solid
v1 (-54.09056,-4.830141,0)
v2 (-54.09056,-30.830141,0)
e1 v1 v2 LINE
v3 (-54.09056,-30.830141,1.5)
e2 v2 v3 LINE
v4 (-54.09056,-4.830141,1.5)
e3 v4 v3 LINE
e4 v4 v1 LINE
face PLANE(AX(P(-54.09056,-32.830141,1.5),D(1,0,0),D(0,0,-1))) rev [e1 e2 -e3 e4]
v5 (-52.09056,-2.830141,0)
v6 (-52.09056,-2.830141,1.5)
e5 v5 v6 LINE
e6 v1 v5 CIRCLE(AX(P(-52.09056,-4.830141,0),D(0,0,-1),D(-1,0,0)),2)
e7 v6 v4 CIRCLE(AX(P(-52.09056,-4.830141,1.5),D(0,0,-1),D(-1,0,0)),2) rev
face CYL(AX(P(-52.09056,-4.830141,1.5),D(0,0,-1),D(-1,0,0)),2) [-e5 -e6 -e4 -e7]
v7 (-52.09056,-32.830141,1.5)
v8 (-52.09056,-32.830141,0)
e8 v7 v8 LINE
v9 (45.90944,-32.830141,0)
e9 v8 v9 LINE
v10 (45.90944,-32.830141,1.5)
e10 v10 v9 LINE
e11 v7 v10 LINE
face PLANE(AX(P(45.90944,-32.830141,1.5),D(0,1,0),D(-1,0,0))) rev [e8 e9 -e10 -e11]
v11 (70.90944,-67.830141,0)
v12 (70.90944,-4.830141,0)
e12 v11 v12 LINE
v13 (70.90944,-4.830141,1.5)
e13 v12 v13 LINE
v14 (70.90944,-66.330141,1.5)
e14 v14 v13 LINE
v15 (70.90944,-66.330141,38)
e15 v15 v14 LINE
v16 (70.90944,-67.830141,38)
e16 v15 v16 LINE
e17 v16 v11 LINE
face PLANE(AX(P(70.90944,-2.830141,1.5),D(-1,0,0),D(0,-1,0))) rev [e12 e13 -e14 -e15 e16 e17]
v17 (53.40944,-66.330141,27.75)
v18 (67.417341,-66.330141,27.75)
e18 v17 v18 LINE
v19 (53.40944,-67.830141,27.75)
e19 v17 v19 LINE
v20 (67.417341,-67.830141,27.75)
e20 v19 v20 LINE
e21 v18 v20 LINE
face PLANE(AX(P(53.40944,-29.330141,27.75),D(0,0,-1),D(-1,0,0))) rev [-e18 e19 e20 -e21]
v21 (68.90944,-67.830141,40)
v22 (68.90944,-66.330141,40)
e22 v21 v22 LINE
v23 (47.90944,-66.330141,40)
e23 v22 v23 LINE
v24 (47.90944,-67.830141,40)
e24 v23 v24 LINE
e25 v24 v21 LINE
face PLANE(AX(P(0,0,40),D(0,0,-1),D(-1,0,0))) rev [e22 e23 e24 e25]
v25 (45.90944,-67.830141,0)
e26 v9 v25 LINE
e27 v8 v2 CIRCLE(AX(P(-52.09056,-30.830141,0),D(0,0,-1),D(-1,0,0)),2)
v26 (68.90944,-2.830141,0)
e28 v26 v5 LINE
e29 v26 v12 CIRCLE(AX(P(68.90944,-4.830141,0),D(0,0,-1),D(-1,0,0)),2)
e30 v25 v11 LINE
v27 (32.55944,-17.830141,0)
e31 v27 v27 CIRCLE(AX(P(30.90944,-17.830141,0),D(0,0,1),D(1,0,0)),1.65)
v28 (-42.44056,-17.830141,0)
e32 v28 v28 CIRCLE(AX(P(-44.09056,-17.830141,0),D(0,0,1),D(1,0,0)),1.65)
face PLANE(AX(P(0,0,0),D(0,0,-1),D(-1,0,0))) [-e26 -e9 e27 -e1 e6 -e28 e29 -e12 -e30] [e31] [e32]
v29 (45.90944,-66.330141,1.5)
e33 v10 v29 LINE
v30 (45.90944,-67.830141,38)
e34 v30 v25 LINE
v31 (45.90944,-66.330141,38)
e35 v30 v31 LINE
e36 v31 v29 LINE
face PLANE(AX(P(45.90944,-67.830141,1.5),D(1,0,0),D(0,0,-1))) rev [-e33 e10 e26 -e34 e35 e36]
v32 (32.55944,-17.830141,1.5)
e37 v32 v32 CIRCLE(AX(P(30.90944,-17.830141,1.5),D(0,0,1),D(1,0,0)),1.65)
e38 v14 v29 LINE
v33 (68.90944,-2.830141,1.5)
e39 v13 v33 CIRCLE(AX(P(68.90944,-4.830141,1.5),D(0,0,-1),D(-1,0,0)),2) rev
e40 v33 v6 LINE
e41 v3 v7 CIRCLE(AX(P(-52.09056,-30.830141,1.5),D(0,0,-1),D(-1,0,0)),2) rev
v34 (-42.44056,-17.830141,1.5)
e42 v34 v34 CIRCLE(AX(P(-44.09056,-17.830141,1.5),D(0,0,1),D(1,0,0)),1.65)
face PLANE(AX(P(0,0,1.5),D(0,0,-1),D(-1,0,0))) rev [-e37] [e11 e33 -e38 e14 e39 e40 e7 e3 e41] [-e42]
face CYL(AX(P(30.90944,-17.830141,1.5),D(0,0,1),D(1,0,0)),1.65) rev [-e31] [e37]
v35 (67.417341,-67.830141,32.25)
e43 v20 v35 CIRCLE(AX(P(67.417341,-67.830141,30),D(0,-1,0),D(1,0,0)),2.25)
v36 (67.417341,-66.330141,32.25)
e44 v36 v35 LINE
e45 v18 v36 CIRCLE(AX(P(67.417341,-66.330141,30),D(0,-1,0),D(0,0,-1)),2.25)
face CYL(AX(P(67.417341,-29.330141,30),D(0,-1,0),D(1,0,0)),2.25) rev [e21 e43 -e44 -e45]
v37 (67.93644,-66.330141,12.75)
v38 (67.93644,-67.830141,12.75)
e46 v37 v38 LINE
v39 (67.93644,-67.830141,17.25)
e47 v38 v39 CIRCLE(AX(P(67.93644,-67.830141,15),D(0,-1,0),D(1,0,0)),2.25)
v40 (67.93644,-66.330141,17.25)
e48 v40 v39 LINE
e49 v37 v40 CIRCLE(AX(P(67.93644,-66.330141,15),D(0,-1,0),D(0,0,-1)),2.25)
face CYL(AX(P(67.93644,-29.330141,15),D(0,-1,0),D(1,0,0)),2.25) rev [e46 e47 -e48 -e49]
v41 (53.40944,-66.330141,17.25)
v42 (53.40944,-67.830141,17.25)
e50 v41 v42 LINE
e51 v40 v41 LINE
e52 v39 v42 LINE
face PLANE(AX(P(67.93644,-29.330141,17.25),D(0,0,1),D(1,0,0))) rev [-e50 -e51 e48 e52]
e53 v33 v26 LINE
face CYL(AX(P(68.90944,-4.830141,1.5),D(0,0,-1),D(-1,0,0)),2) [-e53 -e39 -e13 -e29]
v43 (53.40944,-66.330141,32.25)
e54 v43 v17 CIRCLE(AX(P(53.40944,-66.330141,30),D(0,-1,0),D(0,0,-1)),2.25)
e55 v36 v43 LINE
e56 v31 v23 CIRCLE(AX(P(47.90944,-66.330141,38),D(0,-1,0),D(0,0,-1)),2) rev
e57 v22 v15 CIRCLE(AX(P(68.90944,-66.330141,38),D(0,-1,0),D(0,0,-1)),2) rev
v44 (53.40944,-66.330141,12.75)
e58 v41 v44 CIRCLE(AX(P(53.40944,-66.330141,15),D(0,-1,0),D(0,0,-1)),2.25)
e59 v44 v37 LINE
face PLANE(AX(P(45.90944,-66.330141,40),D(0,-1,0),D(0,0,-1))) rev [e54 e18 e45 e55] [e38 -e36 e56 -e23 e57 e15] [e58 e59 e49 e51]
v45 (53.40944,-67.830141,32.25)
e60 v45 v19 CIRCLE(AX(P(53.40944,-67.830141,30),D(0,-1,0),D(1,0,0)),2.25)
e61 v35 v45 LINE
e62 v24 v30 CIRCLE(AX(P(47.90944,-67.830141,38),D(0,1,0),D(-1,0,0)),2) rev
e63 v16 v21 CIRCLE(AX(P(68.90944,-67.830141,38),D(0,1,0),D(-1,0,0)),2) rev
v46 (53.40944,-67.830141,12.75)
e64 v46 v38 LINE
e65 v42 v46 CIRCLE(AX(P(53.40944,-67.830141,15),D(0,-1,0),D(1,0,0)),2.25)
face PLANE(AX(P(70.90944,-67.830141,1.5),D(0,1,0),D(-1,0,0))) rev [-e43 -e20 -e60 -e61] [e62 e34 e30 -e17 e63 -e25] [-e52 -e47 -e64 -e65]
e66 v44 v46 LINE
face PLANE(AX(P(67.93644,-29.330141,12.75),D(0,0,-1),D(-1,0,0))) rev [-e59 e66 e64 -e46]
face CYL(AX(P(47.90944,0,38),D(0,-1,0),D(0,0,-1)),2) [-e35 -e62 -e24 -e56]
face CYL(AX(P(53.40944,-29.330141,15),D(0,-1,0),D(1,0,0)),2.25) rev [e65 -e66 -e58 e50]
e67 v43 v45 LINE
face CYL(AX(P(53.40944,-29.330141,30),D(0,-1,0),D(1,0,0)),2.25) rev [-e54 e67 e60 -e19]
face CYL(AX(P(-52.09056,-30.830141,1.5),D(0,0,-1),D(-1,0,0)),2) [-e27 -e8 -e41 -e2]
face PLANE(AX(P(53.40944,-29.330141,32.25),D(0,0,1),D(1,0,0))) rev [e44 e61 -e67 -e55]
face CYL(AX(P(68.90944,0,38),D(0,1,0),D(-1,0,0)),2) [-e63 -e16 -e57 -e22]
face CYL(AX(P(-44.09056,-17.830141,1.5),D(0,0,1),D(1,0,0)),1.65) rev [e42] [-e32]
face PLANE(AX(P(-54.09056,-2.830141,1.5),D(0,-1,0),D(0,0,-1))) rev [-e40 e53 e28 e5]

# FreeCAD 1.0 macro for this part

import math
import FreeCAD as App
import Part
import Sketcher
from FreeCAD import Vector


def edges_at(feature, points):
    """Names of the edges that pass closest to the given points."""
    edges = feature.Shape.Edges
    near = lambda p: min(range(len(edges)), key=lambda i: edges[i].distToShape(Part.Vertex(*p))[0])
    return sorted({f"Edge{near(p) + 1}" for p in points})


def add_polygon(sketch, points):
    """Adds a closed chain of lines whose ends are joined by coincident constraints."""
    first, n = sketch.GeometryCount, len(points)
    for a, b in zip(points, points[1:] + points[:1]):
        sketch.addGeometry(Part.LineSegment(App.Vector(*a, 0), App.Vector(*b, 0)), False)
    for i in range(n):
        sketch.addConstraint(Sketcher.Constraint("Coincident", first + i, 2, first + (i + 1) % n, 1))

doc = App.newDocument("Part")
params = doc.addObject("Spreadsheet::Sheet", "Params")
for row, (alias, value) in enumerate([
    ("sketch1_width", "125 mm"),
    ("sketch1_width2", "100 mm"),
    ("sketch1_height", "30 mm"),
    ("sketch1_height2", "35 mm"),
    ("pad1_length", "1.5 mm"),
    ("sketch2_width", "25 mm"),
    ("sketch2_height", "1.5 mm"),
    ("pad2_length", "38.5 mm"),
    ("fillet_radius", "2 mm"),
    ("sketch3_radius", "2.25 mm"),
    ("pocket1_length", "38.5 mm"),
    ("sketch4_diameter", "3.3 mm"),
    ("hole_diameter", "3.3 mm"),
], start=1):
    params.set(f"A{row}", alias)
    params.set(f"B{row}", "=" + value)
    params.setAlias(f"B{row}", alias)

body = doc.addObject("PartDesign::Body", "Body")

# Sketch on XY plane
sketch1 = body.newObject("Sketcher::SketchObject", "Sketch")
sketch1.AttachmentSupport = (doc.getObject("XY_Plane"), [""])
sketch1.MapMode = "FlatFace"
add_polygon(sketch1, [(71, -3), (-54, -3), (-54, -33), (46, -33), (46, -68), (71, -68)])  # lines 0-5
sketch1.addConstraint(Sketcher.Constraint("Horizontal", 0))
sketch1.addConstraint(Sketcher.Constraint("Vertical", 1))
sketch1.addConstraint(Sketcher.Constraint("Horizontal", 2))
sketch1.addConstraint(Sketcher.Constraint("Vertical", 3))
sketch1.addConstraint(Sketcher.Constraint("Horizontal", 4))
sketch1.addConstraint(Sketcher.Constraint("Vertical", 5))
sketch1.addConstraint(Sketcher.Constraint("DistanceX", 0, 2, 0, 1, 125.0))
sketch1.addConstraint(Sketcher.Constraint("DistanceX", 2, 1, 2, 2, 100.0))
sketch1.addConstraint(Sketcher.Constraint("DistanceY", 1, 2, 1, 1, 30.0))
sketch1.addConstraint(Sketcher.Constraint("DistanceY", 3, 2, 3, 1, 35.0))
sketch1.addConstraint(Sketcher.Constraint("DistanceX", 0, 2, -1, 1, 54.09056))
sketch1.addConstraint(Sketcher.Constraint("DistanceY", 0, 2, -1, 1, 2.830141))
sketch1.setExpression("Constraints[12]", "Params.sketch1_width")
sketch1.setExpression("Constraints[13]", "Params.sketch1_width2")
sketch1.setExpression("Constraints[14]", "Params.sketch1_height")
sketch1.setExpression("Constraints[15]", "Params.sketch1_height2")
pad1 = body.newObject("PartDesign::Pad", "Pad")
pad1.Profile = sketch1
pad1.setExpression("Length", "Params.pad1_length")

# Sketch on XY plane
sketch2 = body.newObject("Sketcher::SketchObject", "Sketch001")
sketch2.AttachmentSupport = (doc.getObject("XY_Plane"), [""])
sketch2.MapMode = "FlatFace"
sketch2.AttachmentOffset = App.Placement(Vector(0, 0, 1.5), App.Rotation())
add_polygon(sketch2, [(45.9, -66.3), (45.9, -67.8), (70.9, -67.8), (70.9, -66.3)])  # lines 0-3
sketch2.addConstraint(Sketcher.Constraint("Vertical", 0))
sketch2.addConstraint(Sketcher.Constraint("Horizontal", 1))
sketch2.addConstraint(Sketcher.Constraint("Vertical", 2))
sketch2.addConstraint(Sketcher.Constraint("Horizontal", 3))
sketch2.addConstraint(Sketcher.Constraint("DistanceX", 1, 1, 1, 2, 25.0))
sketch2.addConstraint(Sketcher.Constraint("DistanceY", 0, 2, 0, 1, 1.5))
sketch2.addConstraint(Sketcher.Constraint("DistanceX", -1, 1, 0, 2, 45.90944))
sketch2.addConstraint(Sketcher.Constraint("DistanceY", 0, 2, -1, 1, 67.830141))
sketch2.setExpression("Constraints[8]", "Params.sketch2_width")
sketch2.setExpression("Constraints[9]", "Params.sketch2_height")
pad2 = body.newObject("PartDesign::Pad", "Pad001")
pad2.Profile = sketch2
pad2.setExpression("Length", "Params.pad2_length")
doc.recompute()

fillet = body.newObject("PartDesign::Fillet", "Fillet")
fillet.Base = (pad2, edges_at(pad2, [
    (-54.091, -2.83, 0.75),
    (70.909, -2.83, 0.75),
    (-54.091, -32.83, 0.75),
    (45.909, -67.08, 40),
    (70.909, -67.08, 40),
]))
fillet.setExpression("Radius", "Params.fillet_radius")

# Sketch on XZ plane
sketch3 = body.newObject("Sketcher::SketchObject", "Sketch002")
sketch3.AttachmentSupport = (doc.getObject("XZ_Plane"), [""])
sketch3.MapMode = "FlatFace"
sketch3.AttachmentOffset = App.Placement(Vector(0, 0, 67.830141), App.Rotation())
sketch3.addGeometry(Part.LineSegment(Vector(67.4, 32.2, 0), Vector(53.4, 32.2, 0)), False)
sketch3.addGeometry(Part.ArcOfCircle(Part.Circle(Vector(53.4, 30, 0), Vector(0, 0, 1), 2.2), math.radians(90), math.radians(270)), False)
sketch3.addGeometry(Part.LineSegment(Vector(53.4, 27.8, 0), Vector(67.4, 27.8, 0)), False)
sketch3.addGeometry(Part.ArcOfCircle(Part.Circle(Vector(67.4, 30, 0), Vector(0, 0, 1), 2.2), math.radians(-90), math.radians(90)), False)
sketch3.addGeometry(Part.LineSegment(Vector(53.4, 12.8, 0), Vector(67.9, 12.8, 0)), False)
sketch3.addGeometry(Part.ArcOfCircle(Part.Circle(Vector(67.9, 15, 0), Vector(0, 0, 1), 2.2), math.radians(-90), math.radians(90)), False)
sketch3.addGeometry(Part.LineSegment(Vector(67.9, 17.2, 0), Vector(53.4, 17.2, 0)), False)
sketch3.addGeometry(Part.ArcOfCircle(Part.Circle(Vector(53.4, 15, 0), Vector(0, 0, 1), 2.2), math.radians(90), math.radians(270)), False)
sketch3.addConstraint(Sketcher.Constraint("Tangent", 0, 2, 1, 1))
sketch3.addConstraint(Sketcher.Constraint("Tangent", 1, 2, 2, 1))
sketch3.addConstraint(Sketcher.Constraint("Tangent", 2, 2, 3, 1))
sketch3.addConstraint(Sketcher.Constraint("Tangent", 3, 2, 0, 1))
sketch3.addConstraint(Sketcher.Constraint("Tangent", 4, 2, 5, 1))
sketch3.addConstraint(Sketcher.Constraint("Tangent", 5, 2, 6, 1))
sketch3.addConstraint(Sketcher.Constraint("Tangent", 6, 2, 7, 1))
sketch3.addConstraint(Sketcher.Constraint("Tangent", 7, 2, 4, 1))
sketch3.addConstraint(Sketcher.Constraint("Horizontal", 0))
sketch3.addConstraint(Sketcher.Constraint("Horizontal", 2))
sketch3.addConstraint(Sketcher.Constraint("Horizontal", 4))
sketch3.addConstraint(Sketcher.Constraint("Horizontal", 6))
sketch3.addConstraint(Sketcher.Constraint("Equal", 3, 5))
sketch3.addConstraint(Sketcher.Constraint("Vertical", 1, 3, 7, 3))
sketch3.addConstraint(Sketcher.Constraint("Radius", 1, 2.25))
sketch3.addConstraint(Sketcher.Constraint("DistanceY", -1, 1, 1, 3, 30.0))
sketch3.addConstraint(Sketcher.Constraint("DistanceY", -1, 1, 5, 3, 15.0))
sketch3.addConstraint(Sketcher.Constraint("DistanceX", 4, 1, 4, 2, 14.527))
sketch3.addConstraint(Sketcher.Constraint("DistanceX", 0, 2, 0, 1, 14.007902))
sketch3.addConstraint(Sketcher.Constraint("DistanceX", -1, 1, 1, 3, 53.40944))
sketch3.setExpression("Constraints[14]", "Params.sketch3_radius")
pocket1 = body.newObject("PartDesign::Pocket", "Pocket")
pocket1.Profile = sketch3
pocket1.setExpression("Length", "Params.pocket1_length")

# Sketch on XY plane
sketch4 = body.newObject("Sketcher::SketchObject", "Sketch003")
sketch4.AttachmentSupport = (doc.getObject("XY_Plane"), [""])
sketch4.MapMode = "FlatFace"
sketch4.AttachmentOffset = App.Placement(Vector(0, 0, 1.5), App.Rotation())
sketch4.addGeometry(Part.Circle(Vector(-44.1, -17.8, 0), Vector(0, 0, 1), 1.6), False)
sketch4.addGeometry(Part.Circle(Vector(30.9, -17.8, 0), Vector(0, 0, 1), 1.6), False)
sketch4.addConstraint(Sketcher.Constraint("Equal", 0, 1))
sketch4.addConstraint(Sketcher.Constraint("Horizontal", 0, 3, 1, 3))
sketch4.addConstraint(Sketcher.Constraint("Diameter", 0, 3.3))
sketch4.addConstraint(Sketcher.Constraint("DistanceX", 0, 3, 1, 3, 75.0))
sketch4.addConstraint(Sketcher.Constraint("DistanceX", 0, 3, -1, 1, 44.09056))
sketch4.addConstraint(Sketcher.Constraint("DistanceY", 0, 3, -1, 1, 17.830141))
sketch4.setExpression("Constraints[2]", "Params.sketch4_diameter")
doc.recompute()
hole = body.newObject("PartDesign::Hole", "Hole")
hole.Profile = sketch4
hole.ThreadType = "None"
hole.setExpression("Diameter", "Params.hole_diameter")
hole.DepthType = "ThroughAll"

doc.recompute()
